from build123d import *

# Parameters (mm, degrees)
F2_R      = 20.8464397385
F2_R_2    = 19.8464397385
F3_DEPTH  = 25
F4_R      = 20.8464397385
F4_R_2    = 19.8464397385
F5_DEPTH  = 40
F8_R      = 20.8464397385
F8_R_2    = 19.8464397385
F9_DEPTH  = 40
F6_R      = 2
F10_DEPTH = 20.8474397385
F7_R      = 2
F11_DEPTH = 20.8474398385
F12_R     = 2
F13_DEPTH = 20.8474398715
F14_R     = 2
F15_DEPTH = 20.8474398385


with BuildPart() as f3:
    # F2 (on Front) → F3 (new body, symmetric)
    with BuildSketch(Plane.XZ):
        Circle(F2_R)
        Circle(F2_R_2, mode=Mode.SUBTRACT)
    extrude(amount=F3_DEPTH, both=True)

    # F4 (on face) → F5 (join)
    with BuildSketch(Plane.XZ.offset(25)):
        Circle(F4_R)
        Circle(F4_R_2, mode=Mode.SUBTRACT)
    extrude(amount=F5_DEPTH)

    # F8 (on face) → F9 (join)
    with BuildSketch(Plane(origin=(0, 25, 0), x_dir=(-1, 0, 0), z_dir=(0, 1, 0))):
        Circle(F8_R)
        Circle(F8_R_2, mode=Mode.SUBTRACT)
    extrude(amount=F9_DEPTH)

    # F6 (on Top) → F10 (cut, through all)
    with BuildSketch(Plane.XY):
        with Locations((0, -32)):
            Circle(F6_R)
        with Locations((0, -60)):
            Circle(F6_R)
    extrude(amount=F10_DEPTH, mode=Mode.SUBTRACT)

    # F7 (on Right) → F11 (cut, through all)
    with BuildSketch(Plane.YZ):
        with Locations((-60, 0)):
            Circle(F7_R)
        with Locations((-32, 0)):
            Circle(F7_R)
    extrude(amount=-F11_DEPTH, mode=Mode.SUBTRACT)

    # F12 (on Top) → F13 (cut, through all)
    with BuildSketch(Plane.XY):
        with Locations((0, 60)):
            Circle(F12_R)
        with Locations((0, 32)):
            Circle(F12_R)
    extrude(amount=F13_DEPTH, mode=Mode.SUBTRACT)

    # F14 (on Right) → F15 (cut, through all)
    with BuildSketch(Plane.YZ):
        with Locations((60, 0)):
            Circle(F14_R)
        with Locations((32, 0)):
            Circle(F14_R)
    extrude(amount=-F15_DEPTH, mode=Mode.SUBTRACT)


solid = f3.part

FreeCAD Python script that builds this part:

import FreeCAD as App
import Part
import Sketcher
from FreeCAD import Vector

doc = App.newDocument("Part")
body = doc.addObject("PartDesign::Body", "Body")

sketch1 = body.newObject("Sketcher::SketchObject", "Sketch")
sketch1.AttachmentSupport = (doc.getObject("XZ_Plane"), [""])
sketch1.MapMode = "FlatFace"
sketch1.addGeometry([
    Part.Circle(Vector(0, 0, 0), Vector(0, 0, 1), 20.84644),
    Part.Circle(Vector(0, 0, 0), Vector(0, 0, 1), 19.84644),
], False)
sketch1.addConstraint([
    Sketcher.Constraint("Coincident", 0, 3, -1, 1),
    Sketcher.Constraint("Coincident", 1, 3, -1, 1),
    Sketcher.Constraint("Diameter", 0, 41.692879),
    Sketcher.Constraint("Diameter", 1, 39.692879),
])
pad1 = body.newObject("PartDesign::Pad", "Pad")
pad1.Profile = sketch1
pad1.Length = 50
pad1.Midplane = True

sketch2 = body.newObject("Sketcher::SketchObject", "Sketch001")
sketch2.AttachmentSupport = (doc.getObject("XZ_Plane"), [""])
sketch2.MapMode = "FlatFace"
sketch2.AttachmentOffset = App.Placement(Vector(0, 0, 25), App.Rotation())
sketch2.addGeometry([
    Part.Circle(Vector(0, 0, 0), Vector(0, 0, 1), 20.84644),
    Part.Circle(Vector(0, 0, 0), Vector(0, 0, 1), 19.84644),
], False)
sketch2.addConstraint([
    Sketcher.Constraint("Coincident", 0, 3, -1, 1),
    Sketcher.Constraint("Coincident", 1, 3, -1, 1),
    Sketcher.Constraint("Diameter", 0, 41.692879),
    Sketcher.Constraint("Diameter", 1, 39.692879),
])
pad2 = body.newObject("PartDesign::Pad", "Pad001")
pad2.Profile = sketch2
pad2.Length = 40

sketch3 = body.newObject("Sketcher::SketchObject", "Sketch002")
sketch3.AttachmentSupport = (doc.getObject("XZ_Plane"), [""])
sketch3.MapMode = "FlatFace"
sketch3.AttachmentOffset = App.Placement(Vector(0, 0, -25), App.Rotation())
sketch3.addGeometry([
    Part.Circle(Vector(0, 0, 0), Vector(0, 0, 1), 20.84644),
    Part.Circle(Vector(0, 0, 0), Vector(0, 0, 1), 19.84644),
], False)
sketch3.addConstraint([
    Sketcher.Constraint("Coincident", 0, 3, -1, 1),
    Sketcher.Constraint("Coincident", 1, 3, -1, 1),
    Sketcher.Constraint("Diameter", 0, 41.692879),
    Sketcher.Constraint("Diameter", 1, 39.692879),
])
pad3 = body.newObject("PartDesign::Pad", "Pad002")
pad3.Profile = sketch3
pad3.Length = 40
pad3.Reversed = True

sketch4 = body.newObject("Sketcher::SketchObject", "Sketch003")
sketch4.AttachmentSupport = (doc.getObject("XY_Plane"), [""])
sketch4.MapMode = "FlatFace"
sketch4.addGeometry([
    Part.Circle(Vector(0, -32, 0), Vector(0, 0, 1), 2),
    Part.Circle(Vector(0, -60, 0), Vector(0, 0, 1), 2),
], False)
sketch4.addConstraint([
    Sketcher.Constraint("Equal", 0, 1),
    Sketcher.Constraint("PointOnObject", 0, 3, -2),
    Sketcher.Constraint("PointOnObject", 1, 3, -2),
    Sketcher.Constraint("Diameter", 0, 4.0),
    Sketcher.Constraint("DistanceY", 0, 3, -1, 1, 32.0),
    Sketcher.Constraint("DistanceY", 1, 3, -1, 1, 60.0),
])
pocket1 = body.newObject("PartDesign::Pocket", "Pocket")
pocket1.Profile = sketch4
pocket1.Type = "ThroughAll"
pocket1.Reversed = True

sketch5 = body.newObject("Sketcher::SketchObject", "Sketch004")
sketch5.AttachmentSupport = (doc.getObject("YZ_Plane"), [""])
sketch5.MapMode = "FlatFace"
sketch5.addGeometry([
    Part.Circle(Vector(-60, 0, 0), Vector(0, 0, 1), 2),
    Part.Circle(Vector(-32, 0, 0), Vector(0, 0, 1), 2),
], False)
sketch5.addConstraint([
    Sketcher.Constraint("Equal", 0, 1),
    Sketcher.Constraint("PointOnObject", 0, 3, -1),
    Sketcher.Constraint("PointOnObject", 1, 3, -1),
    Sketcher.Constraint("Diameter", 0, 4.0),
    Sketcher.Constraint("DistanceX", 0, 3, -1, 1, 60.0),
    Sketcher.Constraint("DistanceX", 1, 3, -1, 1, 32.0),
])
pocket2 = body.newObject("PartDesign::Pocket", "Pocket001")
pocket2.Profile = sketch5
pocket2.Type = "ThroughAll"

sketch6 = body.newObject("Sketcher::SketchObject", "Sketch005")
sketch6.AttachmentSupport = (doc.getObject("XY_Plane"), [""])
sketch6.MapMode = "FlatFace"
sketch6.addGeometry([
    Part.Circle(Vector(0, 60, 0), Vector(0, 0, 1), 2),
    Part.Circle(Vector(0, 32, 0), Vector(0, 0, 1), 2),
], False)
sketch6.addConstraint([
    Sketcher.Constraint("Equal", 0, 1),
    Sketcher.Constraint("PointOnObject", 0, 3, -2),
    Sketcher.Constraint("PointOnObject", 1, 3, -2),
    Sketcher.Constraint("Diameter", 0, 4.0),
    Sketcher.Constraint("DistanceY", -1, 1, 0, 3, 60.0),
    Sketcher.Constraint("DistanceY", -1, 1, 1, 3, 32.0),
])
pocket3 = body.newObject("PartDesign::Pocket", "Pocket002")
pocket3.Profile = sketch6
pocket3.Type = "ThroughAll"
pocket3.Reversed = True

sketch7 = body.newObject("Sketcher::SketchObject", "Sketch006")
sketch7.AttachmentSupport = (doc.getObject("YZ_Plane"), [""])
sketch7.MapMode = "FlatFace"
sketch7.addGeometry([
    Part.Circle(Vector(60, 0, 0), Vector(0, 0, 1), 2),
    Part.Circle(Vector(32, 0, 0), Vector(0, 0, 1), 2),
], False)
sketch7.addConstraint([
    Sketcher.Constraint("Equal", 0, 1),
    Sketcher.Constraint("PointOnObject", 0, 3, -1),
    Sketcher.Constraint("PointOnObject", 1, 3, -1),
    Sketcher.Constraint("Diameter", 0, 4.0),
    Sketcher.Constraint("DistanceX", -1, 1, 0, 3, 60.0),
    Sketcher.Constraint("DistanceX", -1, 1, 1, 3, 32.0),
])
pocket4 = body.newObject("PartDesign::Pocket", "Pocket003")
pocket4.Profile = sketch7
pocket4.Type = "ThroughAll"

doc.recompute()
